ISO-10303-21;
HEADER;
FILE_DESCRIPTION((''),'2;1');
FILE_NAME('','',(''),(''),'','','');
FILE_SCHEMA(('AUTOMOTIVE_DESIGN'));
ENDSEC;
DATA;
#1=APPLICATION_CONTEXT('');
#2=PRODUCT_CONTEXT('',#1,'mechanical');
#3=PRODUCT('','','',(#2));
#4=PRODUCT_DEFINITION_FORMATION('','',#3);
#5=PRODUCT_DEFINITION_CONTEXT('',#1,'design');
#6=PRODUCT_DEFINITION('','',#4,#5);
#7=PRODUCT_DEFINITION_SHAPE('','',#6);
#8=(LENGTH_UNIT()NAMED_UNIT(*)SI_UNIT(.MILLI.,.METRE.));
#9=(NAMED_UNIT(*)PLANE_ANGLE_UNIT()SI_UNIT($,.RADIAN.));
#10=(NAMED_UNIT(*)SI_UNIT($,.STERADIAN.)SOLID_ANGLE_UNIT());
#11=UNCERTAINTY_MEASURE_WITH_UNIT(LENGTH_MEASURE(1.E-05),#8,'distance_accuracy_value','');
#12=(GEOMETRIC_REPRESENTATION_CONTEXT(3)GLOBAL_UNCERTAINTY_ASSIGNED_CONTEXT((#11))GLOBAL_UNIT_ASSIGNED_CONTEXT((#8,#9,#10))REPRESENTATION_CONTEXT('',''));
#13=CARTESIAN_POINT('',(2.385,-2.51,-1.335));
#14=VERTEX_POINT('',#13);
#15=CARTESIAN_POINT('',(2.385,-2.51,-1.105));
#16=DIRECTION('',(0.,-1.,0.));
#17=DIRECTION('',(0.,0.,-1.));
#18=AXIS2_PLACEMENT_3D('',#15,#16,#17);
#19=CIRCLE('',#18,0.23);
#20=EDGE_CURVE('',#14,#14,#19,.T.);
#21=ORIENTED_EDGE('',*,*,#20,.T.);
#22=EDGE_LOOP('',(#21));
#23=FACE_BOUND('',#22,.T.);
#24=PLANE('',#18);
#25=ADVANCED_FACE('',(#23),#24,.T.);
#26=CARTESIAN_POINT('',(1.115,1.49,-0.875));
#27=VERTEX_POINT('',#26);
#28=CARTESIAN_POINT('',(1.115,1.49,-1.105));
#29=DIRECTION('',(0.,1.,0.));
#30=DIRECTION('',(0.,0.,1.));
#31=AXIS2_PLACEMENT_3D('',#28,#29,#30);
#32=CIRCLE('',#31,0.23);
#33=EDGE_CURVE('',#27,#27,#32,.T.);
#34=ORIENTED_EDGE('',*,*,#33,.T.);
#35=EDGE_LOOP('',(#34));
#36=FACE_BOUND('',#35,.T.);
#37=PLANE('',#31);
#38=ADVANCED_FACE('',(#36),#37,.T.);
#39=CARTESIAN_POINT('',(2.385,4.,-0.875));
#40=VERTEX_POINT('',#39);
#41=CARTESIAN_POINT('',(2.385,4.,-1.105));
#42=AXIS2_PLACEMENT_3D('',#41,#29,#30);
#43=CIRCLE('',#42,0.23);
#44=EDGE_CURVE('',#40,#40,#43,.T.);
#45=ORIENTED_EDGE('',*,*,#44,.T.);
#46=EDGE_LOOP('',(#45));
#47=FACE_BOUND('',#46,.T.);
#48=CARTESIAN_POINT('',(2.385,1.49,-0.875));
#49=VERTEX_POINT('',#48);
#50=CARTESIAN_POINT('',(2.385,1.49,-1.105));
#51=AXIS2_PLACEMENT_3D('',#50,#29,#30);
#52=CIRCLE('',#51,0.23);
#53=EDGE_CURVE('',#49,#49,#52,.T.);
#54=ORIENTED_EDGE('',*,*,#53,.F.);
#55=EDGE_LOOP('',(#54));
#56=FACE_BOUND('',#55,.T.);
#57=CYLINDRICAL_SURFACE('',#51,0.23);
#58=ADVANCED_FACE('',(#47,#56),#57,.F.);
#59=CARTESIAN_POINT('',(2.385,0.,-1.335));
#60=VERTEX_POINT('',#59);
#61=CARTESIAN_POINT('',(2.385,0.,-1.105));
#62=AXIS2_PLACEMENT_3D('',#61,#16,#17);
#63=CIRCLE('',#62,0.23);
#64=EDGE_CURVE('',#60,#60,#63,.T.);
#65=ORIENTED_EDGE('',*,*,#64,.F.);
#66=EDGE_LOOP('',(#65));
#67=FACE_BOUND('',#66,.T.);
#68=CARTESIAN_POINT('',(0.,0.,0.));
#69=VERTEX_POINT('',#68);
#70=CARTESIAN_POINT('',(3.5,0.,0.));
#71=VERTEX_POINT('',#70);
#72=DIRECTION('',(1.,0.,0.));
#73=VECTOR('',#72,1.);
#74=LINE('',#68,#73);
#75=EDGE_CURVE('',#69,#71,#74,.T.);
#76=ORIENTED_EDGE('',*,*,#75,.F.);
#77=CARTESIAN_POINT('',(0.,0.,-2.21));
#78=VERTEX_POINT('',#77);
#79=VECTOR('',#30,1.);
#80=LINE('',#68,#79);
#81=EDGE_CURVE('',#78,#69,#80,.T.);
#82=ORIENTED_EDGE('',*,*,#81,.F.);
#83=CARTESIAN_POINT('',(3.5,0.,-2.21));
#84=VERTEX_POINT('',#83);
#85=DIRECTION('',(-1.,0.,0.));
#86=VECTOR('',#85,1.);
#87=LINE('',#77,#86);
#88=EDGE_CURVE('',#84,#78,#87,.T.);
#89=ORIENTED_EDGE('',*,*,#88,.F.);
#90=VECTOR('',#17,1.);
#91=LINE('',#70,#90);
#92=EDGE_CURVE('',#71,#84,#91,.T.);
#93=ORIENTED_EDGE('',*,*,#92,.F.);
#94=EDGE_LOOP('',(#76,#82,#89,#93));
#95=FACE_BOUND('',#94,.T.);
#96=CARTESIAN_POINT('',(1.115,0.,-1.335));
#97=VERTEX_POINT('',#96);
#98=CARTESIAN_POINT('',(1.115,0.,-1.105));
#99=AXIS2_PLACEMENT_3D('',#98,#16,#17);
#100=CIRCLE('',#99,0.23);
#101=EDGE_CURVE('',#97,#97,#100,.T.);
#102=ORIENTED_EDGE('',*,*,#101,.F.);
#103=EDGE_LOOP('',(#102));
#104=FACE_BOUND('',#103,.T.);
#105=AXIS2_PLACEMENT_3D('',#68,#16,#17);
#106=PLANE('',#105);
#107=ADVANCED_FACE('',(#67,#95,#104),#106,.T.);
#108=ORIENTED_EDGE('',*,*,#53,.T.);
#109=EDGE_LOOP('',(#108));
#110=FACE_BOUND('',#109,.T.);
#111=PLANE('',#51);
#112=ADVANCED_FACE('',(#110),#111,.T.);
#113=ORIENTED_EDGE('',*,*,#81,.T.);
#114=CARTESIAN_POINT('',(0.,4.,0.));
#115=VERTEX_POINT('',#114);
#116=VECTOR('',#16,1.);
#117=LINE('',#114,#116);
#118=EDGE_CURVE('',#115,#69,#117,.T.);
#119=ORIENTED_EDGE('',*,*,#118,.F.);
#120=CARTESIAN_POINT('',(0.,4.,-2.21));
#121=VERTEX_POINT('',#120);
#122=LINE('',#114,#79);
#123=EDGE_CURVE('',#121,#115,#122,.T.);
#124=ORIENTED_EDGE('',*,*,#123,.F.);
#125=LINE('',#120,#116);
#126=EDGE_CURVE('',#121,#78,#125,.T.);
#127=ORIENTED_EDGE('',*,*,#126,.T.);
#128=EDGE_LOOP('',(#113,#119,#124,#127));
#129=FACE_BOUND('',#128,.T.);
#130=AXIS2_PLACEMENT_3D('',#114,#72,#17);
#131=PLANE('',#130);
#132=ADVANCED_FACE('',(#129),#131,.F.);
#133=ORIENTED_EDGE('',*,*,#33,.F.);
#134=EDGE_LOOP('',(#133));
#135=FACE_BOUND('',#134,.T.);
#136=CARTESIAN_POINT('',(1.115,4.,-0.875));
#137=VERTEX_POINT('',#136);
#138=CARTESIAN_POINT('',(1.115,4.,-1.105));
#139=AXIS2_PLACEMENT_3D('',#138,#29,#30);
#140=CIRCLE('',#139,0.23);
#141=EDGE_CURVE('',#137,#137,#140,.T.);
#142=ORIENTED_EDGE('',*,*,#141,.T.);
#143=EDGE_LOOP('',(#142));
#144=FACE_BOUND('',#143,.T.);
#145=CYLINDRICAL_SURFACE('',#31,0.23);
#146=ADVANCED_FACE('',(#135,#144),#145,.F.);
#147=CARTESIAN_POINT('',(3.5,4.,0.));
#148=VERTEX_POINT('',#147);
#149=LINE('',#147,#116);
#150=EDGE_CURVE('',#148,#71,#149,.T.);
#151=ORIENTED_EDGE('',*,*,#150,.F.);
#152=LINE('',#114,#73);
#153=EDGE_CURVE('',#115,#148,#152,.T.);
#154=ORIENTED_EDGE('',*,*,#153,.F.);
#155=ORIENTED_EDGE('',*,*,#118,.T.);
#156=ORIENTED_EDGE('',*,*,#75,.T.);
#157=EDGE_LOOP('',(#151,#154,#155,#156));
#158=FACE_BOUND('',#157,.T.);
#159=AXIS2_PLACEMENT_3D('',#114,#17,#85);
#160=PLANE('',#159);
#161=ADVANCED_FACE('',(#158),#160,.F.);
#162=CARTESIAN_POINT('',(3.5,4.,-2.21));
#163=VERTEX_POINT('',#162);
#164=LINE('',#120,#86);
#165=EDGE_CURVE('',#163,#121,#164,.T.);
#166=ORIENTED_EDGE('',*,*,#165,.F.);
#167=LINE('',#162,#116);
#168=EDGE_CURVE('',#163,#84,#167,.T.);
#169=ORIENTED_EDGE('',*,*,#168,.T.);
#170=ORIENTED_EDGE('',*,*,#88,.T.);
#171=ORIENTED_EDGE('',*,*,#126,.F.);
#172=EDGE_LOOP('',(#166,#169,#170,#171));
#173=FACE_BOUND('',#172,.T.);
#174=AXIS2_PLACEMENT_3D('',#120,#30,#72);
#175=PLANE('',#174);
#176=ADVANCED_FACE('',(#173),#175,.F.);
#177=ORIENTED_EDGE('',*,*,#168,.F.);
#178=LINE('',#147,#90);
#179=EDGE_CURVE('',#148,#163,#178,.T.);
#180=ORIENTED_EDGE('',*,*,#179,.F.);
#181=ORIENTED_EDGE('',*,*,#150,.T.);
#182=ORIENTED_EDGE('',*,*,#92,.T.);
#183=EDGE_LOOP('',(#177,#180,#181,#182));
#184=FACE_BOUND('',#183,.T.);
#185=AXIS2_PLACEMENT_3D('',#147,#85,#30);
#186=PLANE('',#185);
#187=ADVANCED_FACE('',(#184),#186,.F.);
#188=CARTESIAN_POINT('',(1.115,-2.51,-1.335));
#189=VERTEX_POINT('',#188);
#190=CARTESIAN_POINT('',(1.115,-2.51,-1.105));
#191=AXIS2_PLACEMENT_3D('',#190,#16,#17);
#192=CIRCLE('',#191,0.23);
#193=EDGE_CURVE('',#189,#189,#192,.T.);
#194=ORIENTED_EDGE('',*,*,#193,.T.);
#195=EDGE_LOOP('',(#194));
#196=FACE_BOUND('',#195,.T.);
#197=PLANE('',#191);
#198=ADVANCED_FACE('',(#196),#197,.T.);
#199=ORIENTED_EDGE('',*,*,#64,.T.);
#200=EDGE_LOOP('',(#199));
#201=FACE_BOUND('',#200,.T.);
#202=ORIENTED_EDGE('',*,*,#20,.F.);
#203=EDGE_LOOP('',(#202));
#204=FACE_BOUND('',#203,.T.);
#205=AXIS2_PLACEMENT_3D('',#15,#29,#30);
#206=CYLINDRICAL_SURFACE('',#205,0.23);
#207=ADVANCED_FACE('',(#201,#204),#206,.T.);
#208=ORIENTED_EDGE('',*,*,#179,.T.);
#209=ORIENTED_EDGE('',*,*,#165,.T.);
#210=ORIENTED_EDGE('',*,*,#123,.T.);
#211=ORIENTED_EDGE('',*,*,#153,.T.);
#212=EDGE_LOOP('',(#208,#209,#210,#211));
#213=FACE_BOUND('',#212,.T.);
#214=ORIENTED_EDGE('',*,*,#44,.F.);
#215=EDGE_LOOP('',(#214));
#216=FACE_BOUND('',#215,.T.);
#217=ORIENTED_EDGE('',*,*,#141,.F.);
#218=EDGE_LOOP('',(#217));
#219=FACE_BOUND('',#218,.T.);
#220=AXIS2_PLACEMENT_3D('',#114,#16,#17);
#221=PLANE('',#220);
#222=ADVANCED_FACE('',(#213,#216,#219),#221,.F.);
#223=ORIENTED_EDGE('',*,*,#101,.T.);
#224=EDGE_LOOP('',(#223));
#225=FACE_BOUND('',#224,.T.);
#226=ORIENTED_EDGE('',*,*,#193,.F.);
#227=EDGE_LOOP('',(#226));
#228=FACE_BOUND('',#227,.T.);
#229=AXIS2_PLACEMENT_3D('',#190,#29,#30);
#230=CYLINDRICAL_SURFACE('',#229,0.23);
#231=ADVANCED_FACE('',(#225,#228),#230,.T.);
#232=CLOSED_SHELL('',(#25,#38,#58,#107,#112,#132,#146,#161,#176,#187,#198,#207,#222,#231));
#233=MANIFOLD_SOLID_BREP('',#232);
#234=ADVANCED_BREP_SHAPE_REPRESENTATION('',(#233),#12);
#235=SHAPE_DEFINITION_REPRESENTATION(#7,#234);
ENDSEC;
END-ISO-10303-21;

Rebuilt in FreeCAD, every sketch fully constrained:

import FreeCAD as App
import Part
import Sketcher
from FreeCAD import Vector

doc = App.newDocument("Part")
body = doc.addObject("PartDesign::Body", "Body")

sketch1 = body.newObject("Sketcher::SketchObject", "Sketch")
sketch1.AttachmentSupport = (doc.getObject("XZ_Plane"), [""])
sketch1.MapMode = "FlatFace"
sketch1.addGeometry(Part.LineSegment(Vector(0, -2.2, 0), Vector(0, 0, 0)), False)
sketch1.addGeometry(Part.LineSegment(Vector(0, 0, 0), Vector(3.5, 0, 0)), False)
sketch1.addGeometry(Part.LineSegment(Vector(3.5, 0, 0), Vector(3.5, -2.2, 0)), False)
sketch1.addGeometry(Part.LineSegment(Vector(3.5, -2.2, 0), Vector(0, -2.2, 0)), False)
sketch1.addConstraint(Sketcher.Constraint("Coincident", 0, 2, 1, 1))
sketch1.addConstraint(Sketcher.Constraint("Coincident", 1, 2, 2, 1))
sketch1.addConstraint(Sketcher.Constraint("Coincident", 2, 2, 3, 1))
sketch1.addConstraint(Sketcher.Constraint("Coincident", 3, 2, 0, 1))
sketch1.addConstraint(Sketcher.Constraint("Vertical", 0))
sketch1.addConstraint(Sketcher.Constraint("Horizontal", 1))
sketch1.addConstraint(Sketcher.Constraint("Vertical", 2))
sketch1.addConstraint(Sketcher.Constraint("Horizontal", 3))
sketch1.addConstraint(Sketcher.Constraint("Coincident", 0, 2, -1, 1))
sketch1.addConstraint(Sketcher.Constraint("DistanceX", 1, 1, 1, 2, 3.5))
sketch1.addConstraint(Sketcher.Constraint("DistanceY", 0, 1, 0, 2, 2.21))
pad1 = body.newObject("PartDesign::Pad", "Pad")
pad1.Profile = sketch1
pad1.Length = 4
pad1.Reversed = True

sketch2 = body.newObject("Sketcher::SketchObject", "Sketch001")
sketch2.AttachmentSupport = (doc.getObject("XZ_Plane"), [""])
sketch2.MapMode = "FlatFace"
sketch2.addGeometry(Part.Circle(Vector(1.11, -1.1, 0), Vector(0, 0, 1), 0.23), False)
sketch2.addGeometry(Part.Circle(Vector(2.38, -1.1, 0), Vector(0, 0, 1), 0.23), False)
sketch2.addConstraint(Sketcher.Constraint("Equal", 0, 1))
sketch2.addConstraint(Sketcher.Constraint("Horizontal", 0, 3, 1, 3))
sketch2.addConstraint(Sketcher.Constraint("Diameter", 0, 0.46))
sketch2.addConstraint(Sketcher.Constraint("DistanceX", 0, 3, 1, 3, 1.27))
sketch2.addConstraint(Sketcher.Constraint("DistanceX", -1, 1, 0, 3, 1.115))
sketch2.addConstraint(Sketcher.Constraint("DistanceY", 0, 3, -1, 1, 1.105))
pad2 = body.newObject("PartDesign::Pad", "Pad001")
pad2.Profile = sketch2
pad2.Length = 2.51

sketch3 = body.newObject("Sketcher::SketchObject", "Sketch002")
sketch3.AttachmentSupport = (doc.getObject("XZ_Plane"), [""])
sketch3.MapMode = "FlatFace"
sketch3.AttachmentOffset = App.Placement(Vector(0, 0, -4), App.Rotation())
sketch3.addGeometry(Part.Circle(Vector(2.38, -1.1, 0), Vector(0, 0, 1), 0.23), False)
sketch3.addGeometry(Part.Circle(Vector(1.11, -1.1, 0), Vector(0, 0, 1), 0.23), False)
sketch3.addConstraint(Sketcher.Constraint("Equal", 0, 1))
sketch3.addConstraint(Sketcher.Constraint("Horizontal", 0, 3, 1, 3))
sketch3.addConstraint(Sketcher.Constraint("Diameter", 0, 0.46))
sketch3.addConstraint(Sketcher.Constraint("DistanceX", 1, 3, 0, 3, 1.27))
sketch3.addConstraint(Sketcher.Constraint("DistanceX", -1, 1, 0, 3, 2.385))
sketch3.addConstraint(Sketcher.Constraint("DistanceY", 0, 3, -1, 1, 1.105))
pocket1 = body.newObject("PartDesign::Pocket", "Pocket")
pocket1.Profile = sketch3
pocket1.Length = 2.51
pocket1.Reversed = True

doc.recompute()
